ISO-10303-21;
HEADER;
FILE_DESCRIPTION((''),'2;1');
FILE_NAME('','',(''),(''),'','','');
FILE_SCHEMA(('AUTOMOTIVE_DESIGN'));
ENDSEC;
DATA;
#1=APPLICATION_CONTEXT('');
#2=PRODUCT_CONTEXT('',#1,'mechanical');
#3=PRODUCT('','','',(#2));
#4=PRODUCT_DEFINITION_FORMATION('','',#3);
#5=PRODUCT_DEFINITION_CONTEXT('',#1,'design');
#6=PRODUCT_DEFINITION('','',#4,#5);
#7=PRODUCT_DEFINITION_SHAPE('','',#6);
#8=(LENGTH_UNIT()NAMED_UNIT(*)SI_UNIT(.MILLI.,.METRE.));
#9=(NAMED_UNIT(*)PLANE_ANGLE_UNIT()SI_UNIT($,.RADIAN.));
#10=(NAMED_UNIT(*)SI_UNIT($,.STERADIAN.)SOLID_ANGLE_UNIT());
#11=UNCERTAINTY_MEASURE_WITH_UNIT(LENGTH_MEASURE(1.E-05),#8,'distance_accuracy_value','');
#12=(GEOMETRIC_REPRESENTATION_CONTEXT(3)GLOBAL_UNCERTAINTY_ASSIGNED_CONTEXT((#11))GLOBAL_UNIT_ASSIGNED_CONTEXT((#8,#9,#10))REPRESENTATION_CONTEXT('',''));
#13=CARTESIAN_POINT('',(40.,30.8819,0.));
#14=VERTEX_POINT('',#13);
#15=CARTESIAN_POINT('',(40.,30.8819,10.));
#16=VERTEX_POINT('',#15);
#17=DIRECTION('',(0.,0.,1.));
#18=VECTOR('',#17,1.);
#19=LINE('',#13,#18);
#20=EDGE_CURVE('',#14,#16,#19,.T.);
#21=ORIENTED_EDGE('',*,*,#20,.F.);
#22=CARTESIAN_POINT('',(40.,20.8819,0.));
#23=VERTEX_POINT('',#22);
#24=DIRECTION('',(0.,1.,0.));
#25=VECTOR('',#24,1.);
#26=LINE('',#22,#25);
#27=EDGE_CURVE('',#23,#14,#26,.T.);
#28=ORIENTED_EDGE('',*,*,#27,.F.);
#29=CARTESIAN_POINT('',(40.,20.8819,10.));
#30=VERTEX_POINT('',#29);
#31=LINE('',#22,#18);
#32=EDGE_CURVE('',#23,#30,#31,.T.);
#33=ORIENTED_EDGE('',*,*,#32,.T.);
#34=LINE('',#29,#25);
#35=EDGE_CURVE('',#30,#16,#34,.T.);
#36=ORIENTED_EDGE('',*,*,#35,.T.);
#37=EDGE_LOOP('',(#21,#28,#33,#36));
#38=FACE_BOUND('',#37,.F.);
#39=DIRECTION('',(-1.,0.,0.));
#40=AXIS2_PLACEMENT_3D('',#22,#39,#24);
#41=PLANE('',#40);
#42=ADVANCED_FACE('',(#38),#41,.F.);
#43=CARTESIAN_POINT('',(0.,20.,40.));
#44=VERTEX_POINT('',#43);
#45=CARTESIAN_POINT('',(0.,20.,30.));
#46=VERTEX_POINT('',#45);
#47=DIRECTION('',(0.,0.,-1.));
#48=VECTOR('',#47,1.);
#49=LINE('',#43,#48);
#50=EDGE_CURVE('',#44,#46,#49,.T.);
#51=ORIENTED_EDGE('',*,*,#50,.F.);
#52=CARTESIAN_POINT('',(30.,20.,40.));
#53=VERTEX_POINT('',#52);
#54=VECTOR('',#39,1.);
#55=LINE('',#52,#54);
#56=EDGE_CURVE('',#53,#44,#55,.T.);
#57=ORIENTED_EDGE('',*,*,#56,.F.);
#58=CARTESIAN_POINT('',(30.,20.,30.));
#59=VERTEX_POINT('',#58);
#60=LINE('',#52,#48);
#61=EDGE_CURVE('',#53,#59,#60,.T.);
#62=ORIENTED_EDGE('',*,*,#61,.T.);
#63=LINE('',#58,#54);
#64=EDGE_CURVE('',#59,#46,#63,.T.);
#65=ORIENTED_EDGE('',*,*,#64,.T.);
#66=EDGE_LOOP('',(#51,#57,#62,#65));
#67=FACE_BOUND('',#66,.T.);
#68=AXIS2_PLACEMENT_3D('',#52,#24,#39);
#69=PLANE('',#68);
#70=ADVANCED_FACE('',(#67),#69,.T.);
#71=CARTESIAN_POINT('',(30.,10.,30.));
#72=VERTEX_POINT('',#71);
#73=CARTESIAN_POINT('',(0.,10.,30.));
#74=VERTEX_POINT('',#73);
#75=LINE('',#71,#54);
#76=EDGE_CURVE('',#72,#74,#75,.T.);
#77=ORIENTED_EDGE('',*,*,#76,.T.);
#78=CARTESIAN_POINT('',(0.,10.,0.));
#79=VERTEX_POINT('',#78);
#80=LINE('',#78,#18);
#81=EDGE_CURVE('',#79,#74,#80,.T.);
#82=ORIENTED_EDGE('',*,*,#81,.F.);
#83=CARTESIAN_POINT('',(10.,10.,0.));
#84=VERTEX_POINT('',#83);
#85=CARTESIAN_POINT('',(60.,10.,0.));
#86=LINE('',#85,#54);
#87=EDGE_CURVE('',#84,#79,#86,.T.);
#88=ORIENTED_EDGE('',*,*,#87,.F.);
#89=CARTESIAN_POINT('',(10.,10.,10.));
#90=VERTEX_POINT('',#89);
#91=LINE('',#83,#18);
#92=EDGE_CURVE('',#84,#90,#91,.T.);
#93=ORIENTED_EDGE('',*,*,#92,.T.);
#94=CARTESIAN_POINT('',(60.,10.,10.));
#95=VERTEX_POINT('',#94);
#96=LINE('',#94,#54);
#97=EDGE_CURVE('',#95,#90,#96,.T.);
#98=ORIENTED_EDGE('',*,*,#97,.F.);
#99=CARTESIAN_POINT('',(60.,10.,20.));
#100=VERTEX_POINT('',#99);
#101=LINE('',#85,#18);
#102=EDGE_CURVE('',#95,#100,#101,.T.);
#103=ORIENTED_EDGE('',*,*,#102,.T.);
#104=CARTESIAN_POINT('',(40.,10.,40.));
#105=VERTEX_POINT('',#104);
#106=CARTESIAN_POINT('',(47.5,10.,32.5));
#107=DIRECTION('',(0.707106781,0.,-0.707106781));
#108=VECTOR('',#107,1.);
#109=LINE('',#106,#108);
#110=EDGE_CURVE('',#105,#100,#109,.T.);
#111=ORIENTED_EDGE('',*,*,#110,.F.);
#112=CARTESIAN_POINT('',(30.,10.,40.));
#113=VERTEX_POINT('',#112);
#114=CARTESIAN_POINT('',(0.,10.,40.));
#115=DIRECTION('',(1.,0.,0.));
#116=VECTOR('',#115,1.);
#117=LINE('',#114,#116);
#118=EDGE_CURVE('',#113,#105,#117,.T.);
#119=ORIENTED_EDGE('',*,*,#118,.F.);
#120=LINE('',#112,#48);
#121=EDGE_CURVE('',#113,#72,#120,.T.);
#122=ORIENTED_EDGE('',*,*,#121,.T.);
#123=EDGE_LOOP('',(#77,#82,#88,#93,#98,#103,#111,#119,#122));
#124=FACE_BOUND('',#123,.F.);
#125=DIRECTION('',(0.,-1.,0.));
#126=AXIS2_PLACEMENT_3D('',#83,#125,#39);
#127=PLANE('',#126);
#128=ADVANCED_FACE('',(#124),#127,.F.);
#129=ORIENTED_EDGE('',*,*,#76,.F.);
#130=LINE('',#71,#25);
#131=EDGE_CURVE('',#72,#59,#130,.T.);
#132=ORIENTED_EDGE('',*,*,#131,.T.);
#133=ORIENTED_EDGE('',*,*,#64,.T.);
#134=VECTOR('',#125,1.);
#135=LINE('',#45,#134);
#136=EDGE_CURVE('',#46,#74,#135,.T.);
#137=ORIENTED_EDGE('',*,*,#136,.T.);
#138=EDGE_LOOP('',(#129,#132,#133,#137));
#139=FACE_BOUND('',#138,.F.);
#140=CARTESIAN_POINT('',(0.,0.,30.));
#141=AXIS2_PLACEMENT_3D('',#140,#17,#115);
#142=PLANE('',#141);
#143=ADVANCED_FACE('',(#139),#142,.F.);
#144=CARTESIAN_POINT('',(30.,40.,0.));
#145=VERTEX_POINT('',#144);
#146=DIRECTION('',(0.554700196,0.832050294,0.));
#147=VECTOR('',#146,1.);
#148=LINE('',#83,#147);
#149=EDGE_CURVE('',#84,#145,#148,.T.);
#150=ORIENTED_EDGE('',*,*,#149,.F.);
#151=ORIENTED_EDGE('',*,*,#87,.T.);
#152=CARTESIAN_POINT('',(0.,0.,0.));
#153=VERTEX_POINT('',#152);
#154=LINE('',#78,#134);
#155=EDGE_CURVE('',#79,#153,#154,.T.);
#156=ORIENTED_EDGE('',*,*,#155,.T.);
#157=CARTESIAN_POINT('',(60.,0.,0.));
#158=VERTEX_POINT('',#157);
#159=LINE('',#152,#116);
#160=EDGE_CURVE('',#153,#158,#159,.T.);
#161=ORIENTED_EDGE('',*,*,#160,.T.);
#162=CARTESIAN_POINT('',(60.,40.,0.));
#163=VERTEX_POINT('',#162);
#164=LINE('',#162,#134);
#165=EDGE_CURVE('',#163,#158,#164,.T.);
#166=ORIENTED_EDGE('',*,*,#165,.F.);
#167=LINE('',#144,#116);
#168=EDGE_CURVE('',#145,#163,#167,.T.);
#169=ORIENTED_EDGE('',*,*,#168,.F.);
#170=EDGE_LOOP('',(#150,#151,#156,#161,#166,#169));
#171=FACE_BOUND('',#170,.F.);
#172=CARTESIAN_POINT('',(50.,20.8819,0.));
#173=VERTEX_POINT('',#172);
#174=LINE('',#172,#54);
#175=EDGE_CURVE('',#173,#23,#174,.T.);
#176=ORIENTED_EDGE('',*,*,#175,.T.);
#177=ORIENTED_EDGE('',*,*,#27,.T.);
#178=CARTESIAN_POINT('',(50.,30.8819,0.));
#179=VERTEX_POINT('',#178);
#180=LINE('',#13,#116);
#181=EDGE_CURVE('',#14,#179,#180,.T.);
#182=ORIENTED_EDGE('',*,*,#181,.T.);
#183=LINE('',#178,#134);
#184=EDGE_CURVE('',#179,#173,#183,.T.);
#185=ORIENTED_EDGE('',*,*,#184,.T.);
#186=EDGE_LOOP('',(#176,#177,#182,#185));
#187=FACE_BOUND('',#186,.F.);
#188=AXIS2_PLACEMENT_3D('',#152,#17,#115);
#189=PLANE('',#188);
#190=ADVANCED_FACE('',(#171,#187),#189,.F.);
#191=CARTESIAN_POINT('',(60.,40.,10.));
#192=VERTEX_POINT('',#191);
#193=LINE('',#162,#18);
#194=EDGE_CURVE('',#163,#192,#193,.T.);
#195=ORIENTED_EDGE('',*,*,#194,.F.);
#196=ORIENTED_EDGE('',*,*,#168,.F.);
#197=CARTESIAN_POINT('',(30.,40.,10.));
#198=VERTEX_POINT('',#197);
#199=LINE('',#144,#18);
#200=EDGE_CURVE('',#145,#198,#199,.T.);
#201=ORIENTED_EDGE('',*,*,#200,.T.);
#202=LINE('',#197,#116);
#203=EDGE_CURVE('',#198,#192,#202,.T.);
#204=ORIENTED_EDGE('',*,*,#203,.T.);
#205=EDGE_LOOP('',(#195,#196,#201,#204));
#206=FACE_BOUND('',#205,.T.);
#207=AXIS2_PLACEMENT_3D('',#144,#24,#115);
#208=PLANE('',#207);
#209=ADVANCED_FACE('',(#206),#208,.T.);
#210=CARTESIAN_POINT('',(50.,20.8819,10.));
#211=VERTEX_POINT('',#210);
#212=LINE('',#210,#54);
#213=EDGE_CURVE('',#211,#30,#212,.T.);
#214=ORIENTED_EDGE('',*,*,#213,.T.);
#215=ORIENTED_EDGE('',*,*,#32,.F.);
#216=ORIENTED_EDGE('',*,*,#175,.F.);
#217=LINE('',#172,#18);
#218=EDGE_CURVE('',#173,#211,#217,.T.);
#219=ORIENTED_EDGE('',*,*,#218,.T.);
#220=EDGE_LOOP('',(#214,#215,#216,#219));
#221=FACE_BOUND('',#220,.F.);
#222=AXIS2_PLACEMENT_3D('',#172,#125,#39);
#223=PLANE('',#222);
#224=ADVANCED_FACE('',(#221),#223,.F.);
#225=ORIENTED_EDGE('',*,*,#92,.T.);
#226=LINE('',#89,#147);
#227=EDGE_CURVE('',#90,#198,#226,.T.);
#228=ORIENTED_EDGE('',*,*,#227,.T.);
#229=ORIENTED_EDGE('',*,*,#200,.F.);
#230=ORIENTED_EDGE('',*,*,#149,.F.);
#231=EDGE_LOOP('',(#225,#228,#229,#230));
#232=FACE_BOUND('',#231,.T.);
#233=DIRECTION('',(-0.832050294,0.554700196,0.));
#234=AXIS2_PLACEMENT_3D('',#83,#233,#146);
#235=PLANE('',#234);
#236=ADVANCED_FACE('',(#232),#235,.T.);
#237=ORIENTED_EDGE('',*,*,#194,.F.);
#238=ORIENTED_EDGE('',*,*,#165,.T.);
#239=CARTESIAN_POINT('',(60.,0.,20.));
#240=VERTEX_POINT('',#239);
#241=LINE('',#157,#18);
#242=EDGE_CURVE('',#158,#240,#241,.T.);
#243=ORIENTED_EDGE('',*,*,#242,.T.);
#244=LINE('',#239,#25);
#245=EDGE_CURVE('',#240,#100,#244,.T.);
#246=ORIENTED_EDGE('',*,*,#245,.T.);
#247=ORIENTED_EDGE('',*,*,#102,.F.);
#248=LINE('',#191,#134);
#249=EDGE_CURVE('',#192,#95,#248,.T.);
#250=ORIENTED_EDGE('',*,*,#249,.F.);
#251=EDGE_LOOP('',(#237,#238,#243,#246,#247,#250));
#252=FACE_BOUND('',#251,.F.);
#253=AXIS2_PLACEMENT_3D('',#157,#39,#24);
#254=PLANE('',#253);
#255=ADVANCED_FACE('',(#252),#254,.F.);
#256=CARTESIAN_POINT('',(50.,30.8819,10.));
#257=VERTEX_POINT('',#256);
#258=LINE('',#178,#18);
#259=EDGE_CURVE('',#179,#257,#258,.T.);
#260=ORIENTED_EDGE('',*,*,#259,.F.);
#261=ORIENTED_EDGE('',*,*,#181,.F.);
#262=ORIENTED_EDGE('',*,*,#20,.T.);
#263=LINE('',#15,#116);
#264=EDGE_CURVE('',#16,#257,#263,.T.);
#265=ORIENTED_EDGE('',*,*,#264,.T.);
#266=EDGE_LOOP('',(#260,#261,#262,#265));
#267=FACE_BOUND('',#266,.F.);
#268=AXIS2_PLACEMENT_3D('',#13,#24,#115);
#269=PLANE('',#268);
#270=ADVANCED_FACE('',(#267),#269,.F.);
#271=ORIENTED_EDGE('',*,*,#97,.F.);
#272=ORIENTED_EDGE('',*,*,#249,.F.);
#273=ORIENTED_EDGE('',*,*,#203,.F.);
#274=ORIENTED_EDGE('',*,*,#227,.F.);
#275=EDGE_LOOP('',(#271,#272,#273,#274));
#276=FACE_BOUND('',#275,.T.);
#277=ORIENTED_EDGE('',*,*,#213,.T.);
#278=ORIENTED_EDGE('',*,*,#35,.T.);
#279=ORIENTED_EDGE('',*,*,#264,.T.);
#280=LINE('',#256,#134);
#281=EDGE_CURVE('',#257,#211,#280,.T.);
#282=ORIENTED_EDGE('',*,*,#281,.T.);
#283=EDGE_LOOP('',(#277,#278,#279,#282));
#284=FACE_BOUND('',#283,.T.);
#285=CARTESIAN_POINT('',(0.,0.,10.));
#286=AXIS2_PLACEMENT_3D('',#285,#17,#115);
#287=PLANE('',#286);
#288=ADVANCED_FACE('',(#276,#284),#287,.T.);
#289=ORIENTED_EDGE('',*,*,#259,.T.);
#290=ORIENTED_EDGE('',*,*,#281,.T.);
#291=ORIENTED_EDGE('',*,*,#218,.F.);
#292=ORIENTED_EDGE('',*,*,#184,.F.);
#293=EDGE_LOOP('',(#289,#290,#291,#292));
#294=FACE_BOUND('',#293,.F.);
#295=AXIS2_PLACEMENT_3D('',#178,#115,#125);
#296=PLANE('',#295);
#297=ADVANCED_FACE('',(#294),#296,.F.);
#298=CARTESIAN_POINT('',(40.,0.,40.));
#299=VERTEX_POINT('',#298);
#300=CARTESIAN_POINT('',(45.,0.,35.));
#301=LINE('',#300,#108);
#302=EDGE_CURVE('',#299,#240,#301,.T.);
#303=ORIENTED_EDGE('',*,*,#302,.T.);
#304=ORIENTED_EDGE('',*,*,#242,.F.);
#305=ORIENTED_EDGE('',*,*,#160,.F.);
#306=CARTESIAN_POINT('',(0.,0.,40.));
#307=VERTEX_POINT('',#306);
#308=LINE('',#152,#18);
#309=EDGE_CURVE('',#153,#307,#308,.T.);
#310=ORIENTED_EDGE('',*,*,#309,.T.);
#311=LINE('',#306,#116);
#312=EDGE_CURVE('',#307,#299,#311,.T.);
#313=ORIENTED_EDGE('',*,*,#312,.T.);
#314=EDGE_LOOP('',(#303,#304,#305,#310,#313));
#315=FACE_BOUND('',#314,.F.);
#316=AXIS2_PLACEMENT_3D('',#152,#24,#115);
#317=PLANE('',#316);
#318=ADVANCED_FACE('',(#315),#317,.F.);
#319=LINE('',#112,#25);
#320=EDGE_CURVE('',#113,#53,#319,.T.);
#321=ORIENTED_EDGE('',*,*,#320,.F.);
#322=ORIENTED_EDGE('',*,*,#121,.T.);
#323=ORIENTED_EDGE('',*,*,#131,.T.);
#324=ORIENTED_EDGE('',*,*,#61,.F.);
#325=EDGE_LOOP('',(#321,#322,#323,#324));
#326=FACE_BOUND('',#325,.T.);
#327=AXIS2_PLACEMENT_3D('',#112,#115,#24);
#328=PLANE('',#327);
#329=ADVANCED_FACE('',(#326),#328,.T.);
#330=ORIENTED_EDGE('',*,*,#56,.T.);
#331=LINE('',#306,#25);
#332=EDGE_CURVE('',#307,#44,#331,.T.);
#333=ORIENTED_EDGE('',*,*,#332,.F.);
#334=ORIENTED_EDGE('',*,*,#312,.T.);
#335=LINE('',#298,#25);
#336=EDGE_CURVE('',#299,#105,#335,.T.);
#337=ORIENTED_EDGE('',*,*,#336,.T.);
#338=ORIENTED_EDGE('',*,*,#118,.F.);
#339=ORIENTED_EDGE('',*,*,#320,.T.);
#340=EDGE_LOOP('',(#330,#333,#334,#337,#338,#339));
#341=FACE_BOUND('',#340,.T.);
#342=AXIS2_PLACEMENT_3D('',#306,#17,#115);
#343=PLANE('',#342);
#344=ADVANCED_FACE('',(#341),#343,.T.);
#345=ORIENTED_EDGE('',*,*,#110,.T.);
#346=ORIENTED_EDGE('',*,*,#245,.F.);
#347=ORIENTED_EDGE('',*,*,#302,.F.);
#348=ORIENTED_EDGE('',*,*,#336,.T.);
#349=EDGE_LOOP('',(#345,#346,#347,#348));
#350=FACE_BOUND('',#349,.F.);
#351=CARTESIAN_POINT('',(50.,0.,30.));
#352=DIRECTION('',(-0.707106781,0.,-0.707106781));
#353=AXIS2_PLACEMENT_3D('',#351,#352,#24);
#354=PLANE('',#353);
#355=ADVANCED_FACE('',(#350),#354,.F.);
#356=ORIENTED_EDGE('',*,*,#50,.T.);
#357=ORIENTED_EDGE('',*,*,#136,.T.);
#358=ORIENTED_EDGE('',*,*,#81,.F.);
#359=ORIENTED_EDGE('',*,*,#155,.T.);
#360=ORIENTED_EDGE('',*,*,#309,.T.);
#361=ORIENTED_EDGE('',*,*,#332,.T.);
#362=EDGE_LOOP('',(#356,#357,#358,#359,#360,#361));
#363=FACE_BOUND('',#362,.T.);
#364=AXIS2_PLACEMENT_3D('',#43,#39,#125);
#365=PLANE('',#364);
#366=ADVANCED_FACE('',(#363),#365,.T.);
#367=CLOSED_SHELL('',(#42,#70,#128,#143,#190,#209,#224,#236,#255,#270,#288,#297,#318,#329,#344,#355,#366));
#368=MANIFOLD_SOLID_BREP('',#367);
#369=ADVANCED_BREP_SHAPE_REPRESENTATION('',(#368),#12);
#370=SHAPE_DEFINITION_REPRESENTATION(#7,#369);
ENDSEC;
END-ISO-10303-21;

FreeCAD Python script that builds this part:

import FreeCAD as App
import Part
import Sketcher

V = App.Vector
Q = App.Units.Quantity


def edges_at(feature, points):
    """Names of the edges that pass closest to the given points."""
    edges = feature.Shape.Edges
    near = lambda p: min(range(len(edges)), key=lambda i: edges[i].distToShape(Part.Vertex(*p))[0])
    return sorted({f"Edge{near(p) + 1}" for p in points})

doc = App.newDocument("Part")
body = doc.addObject("PartDesign::Body", "Body")

sketch1 = doc.addObject("Sketcher::SketchObject", "Sketch")
body.addObject(sketch1)
sketch1.AttachmentSupport = (doc.XY_Plane, [""])
sketch1.MapMode = "FlatFace"
sketch1.addGeometry([
    Part.LineSegment(V(0, 10, 0), V(0, 0, 0)),
    Part.LineSegment(V(0, 0, 0), V(60, 0, 0)),
    Part.LineSegment(V(60, 0, 0), V(60, 10, 0)),
    Part.LineSegment(V(60, 10, 0), V(0, 10, 0)),
], False)
sketch1.addConstraint([
    Sketcher.Constraint("Coincident", 0, 2, 1, 1),
    Sketcher.Constraint("Coincident", 1, 2, 2, 1),
    Sketcher.Constraint("Coincident", 2, 2, 3, 1),
    Sketcher.Constraint("Coincident", 3, 2, 0, 1),
    Sketcher.Constraint("Vertical", 0),
    Sketcher.Constraint("Horizontal", 1),
    Sketcher.Constraint("Vertical", 2),
    Sketcher.Constraint("Horizontal", 3),
    Sketcher.Constraint("Coincident", 0, 2, -1, 1),
    Sketcher.Constraint("DistanceX", 1, 1, 1, 2, Q("60 mm")),
    Sketcher.Constraint("DistanceY", 0, 2, 0, 1, Q("10 mm")),
])
pad1 = doc.addObject("PartDesign::Pad", "Pad")
body.addObject(pad1)
pad1.Profile = sketch1
pad1.Length = 40

sketch2 = doc.addObject("Sketcher::SketchObject", "Sketch001")
body.addObject(sketch2)
sketch2.AttachmentSupport = (doc.XY_Plane, [""])
sketch2.MapMode = "FlatFace"
sketch2.addGeometry([
    Part.LineSegment(V(60, 10, 0), V(60, 40, 0)),
    Part.LineSegment(V(60, 40, 0), V(30, 40, 0)),
    Part.LineSegment(V(30, 40, 0), V(10, 10, 0)),
    Part.LineSegment(V(10, 10, 0), V(60, 10, 0)),
    Part.LineSegment(V(40, 21, 0), V(40, 31, 0)),
    Part.LineSegment(V(40, 31, 0), V(50, 31, 0)),
    Part.LineSegment(V(50, 31, 0), V(50, 21, 0)),
    Part.LineSegment(V(50, 21, 0), V(40, 21, 0)),
], False)
sketch2.addConstraint([
    Sketcher.Constraint("Coincident", 0, 2, 1, 1),
    Sketcher.Constraint("Coincident", 1, 2, 2, 1),
    Sketcher.Constraint("Coincident", 2, 2, 3, 1),
    Sketcher.Constraint("Coincident", 3, 2, 0, 1),
    Sketcher.Constraint("Coincident", 4, 2, 5, 1),
    Sketcher.Constraint("Coincident", 5, 2, 6, 1),
    Sketcher.Constraint("Coincident", 6, 2, 7, 1),
    Sketcher.Constraint("Coincident", 7, 2, 4, 1),
    Sketcher.Constraint("Vertical", 0),
    Sketcher.Constraint("Horizontal", 1),
    Sketcher.Constraint("Horizontal", 3),
    Sketcher.Constraint("Vertical", 4),
    Sketcher.Constraint("Horizontal", 5),
    Sketcher.Constraint("Vertical", 6),
    Sketcher.Constraint("Horizontal", 7),
    Sketcher.Constraint("Equal", 1, 0),
    Sketcher.Constraint("Equal", 7, 4),
    Sketcher.Constraint("DistanceX", 1, 2, 1, 1, Q("30 mm")),
    Sketcher.Constraint("DistanceX", 5, 1, 5, 2, Q("10 mm")),
    Sketcher.Constraint("DistanceX", -1, 1, 0, 2, Q("60 mm")),
    Sketcher.Constraint("DistanceX", -1, 1, 2, 2, Q("10 mm")),
    Sketcher.Constraint("DistanceY", -1, 1, 2, 2, Q("10 mm")),
    Sketcher.Constraint("DistanceX", 1, 2, 4, 2, Q("10 mm")),
    Sketcher.Constraint("DistanceY", -1, 1, 4, 2, Q("30.882 mm")),
])
pad2 = doc.addObject("PartDesign::Pad", "Pad001")
body.addObject(pad2)
pad2.Profile = sketch2
pad2.Length = 10

sketch3 = doc.addObject("Sketcher::SketchObject", "Sketch002")
body.addObject(sketch3)
sketch3.AttachmentSupport = (doc.XY_Plane, [""])
sketch3.MapMode = "FlatFace"
sketch3.AttachmentOffset = App.Placement(V(0, 0, 40), App.Rotation())
sketch3.addGeometry([
    Part.LineSegment(V(0, 10, 0), V(30, 10, 0)),
    Part.LineSegment(V(30, 10, 0), V(30, 20, 0)),
    Part.LineSegment(V(30, 20, 0), V(0, 20, 0)),
    Part.LineSegment(V(0, 20, 0), V(0, 10, 0)),
], False)
sketch3.addConstraint([
    Sketcher.Constraint("Coincident", 0, 2, 1, 1),
    Sketcher.Constraint("Coincident", 1, 2, 2, 1),
    Sketcher.Constraint("Coincident", 2, 2, 3, 1),
    Sketcher.Constraint("Coincident", 3, 2, 0, 1),
    Sketcher.Constraint("Horizontal", 0),
    Sketcher.Constraint("Vertical", 1),
    Sketcher.Constraint("Horizontal", 2),
    Sketcher.Constraint("Vertical", 3),
    Sketcher.Constraint("PointOnObject", 2, 2, -2),
    Sketcher.Constraint("DistanceX", 0, 1, 0, 2, Q("30 mm")),
    Sketcher.Constraint("DistanceY", 1, 1, 1, 2, Q("10 mm")),
    Sketcher.Constraint("DistanceY", -1, 1, 0, 2, Q("10 mm")),
])
pad3 = doc.addObject("PartDesign::Pad", "Pad002")
body.addObject(pad3)
pad3.Profile = sketch3
pad3.Length = 10
pad3.Reversed = True
doc.recompute()

chamfer = doc.addObject("PartDesign::Chamfer", "Chamfer")
body.addObject(chamfer)
chamfer.Base = (pad3, edges_at(pad3, [(60, 5, 40)]))
chamfer.Size = 20

doc.recompute()
